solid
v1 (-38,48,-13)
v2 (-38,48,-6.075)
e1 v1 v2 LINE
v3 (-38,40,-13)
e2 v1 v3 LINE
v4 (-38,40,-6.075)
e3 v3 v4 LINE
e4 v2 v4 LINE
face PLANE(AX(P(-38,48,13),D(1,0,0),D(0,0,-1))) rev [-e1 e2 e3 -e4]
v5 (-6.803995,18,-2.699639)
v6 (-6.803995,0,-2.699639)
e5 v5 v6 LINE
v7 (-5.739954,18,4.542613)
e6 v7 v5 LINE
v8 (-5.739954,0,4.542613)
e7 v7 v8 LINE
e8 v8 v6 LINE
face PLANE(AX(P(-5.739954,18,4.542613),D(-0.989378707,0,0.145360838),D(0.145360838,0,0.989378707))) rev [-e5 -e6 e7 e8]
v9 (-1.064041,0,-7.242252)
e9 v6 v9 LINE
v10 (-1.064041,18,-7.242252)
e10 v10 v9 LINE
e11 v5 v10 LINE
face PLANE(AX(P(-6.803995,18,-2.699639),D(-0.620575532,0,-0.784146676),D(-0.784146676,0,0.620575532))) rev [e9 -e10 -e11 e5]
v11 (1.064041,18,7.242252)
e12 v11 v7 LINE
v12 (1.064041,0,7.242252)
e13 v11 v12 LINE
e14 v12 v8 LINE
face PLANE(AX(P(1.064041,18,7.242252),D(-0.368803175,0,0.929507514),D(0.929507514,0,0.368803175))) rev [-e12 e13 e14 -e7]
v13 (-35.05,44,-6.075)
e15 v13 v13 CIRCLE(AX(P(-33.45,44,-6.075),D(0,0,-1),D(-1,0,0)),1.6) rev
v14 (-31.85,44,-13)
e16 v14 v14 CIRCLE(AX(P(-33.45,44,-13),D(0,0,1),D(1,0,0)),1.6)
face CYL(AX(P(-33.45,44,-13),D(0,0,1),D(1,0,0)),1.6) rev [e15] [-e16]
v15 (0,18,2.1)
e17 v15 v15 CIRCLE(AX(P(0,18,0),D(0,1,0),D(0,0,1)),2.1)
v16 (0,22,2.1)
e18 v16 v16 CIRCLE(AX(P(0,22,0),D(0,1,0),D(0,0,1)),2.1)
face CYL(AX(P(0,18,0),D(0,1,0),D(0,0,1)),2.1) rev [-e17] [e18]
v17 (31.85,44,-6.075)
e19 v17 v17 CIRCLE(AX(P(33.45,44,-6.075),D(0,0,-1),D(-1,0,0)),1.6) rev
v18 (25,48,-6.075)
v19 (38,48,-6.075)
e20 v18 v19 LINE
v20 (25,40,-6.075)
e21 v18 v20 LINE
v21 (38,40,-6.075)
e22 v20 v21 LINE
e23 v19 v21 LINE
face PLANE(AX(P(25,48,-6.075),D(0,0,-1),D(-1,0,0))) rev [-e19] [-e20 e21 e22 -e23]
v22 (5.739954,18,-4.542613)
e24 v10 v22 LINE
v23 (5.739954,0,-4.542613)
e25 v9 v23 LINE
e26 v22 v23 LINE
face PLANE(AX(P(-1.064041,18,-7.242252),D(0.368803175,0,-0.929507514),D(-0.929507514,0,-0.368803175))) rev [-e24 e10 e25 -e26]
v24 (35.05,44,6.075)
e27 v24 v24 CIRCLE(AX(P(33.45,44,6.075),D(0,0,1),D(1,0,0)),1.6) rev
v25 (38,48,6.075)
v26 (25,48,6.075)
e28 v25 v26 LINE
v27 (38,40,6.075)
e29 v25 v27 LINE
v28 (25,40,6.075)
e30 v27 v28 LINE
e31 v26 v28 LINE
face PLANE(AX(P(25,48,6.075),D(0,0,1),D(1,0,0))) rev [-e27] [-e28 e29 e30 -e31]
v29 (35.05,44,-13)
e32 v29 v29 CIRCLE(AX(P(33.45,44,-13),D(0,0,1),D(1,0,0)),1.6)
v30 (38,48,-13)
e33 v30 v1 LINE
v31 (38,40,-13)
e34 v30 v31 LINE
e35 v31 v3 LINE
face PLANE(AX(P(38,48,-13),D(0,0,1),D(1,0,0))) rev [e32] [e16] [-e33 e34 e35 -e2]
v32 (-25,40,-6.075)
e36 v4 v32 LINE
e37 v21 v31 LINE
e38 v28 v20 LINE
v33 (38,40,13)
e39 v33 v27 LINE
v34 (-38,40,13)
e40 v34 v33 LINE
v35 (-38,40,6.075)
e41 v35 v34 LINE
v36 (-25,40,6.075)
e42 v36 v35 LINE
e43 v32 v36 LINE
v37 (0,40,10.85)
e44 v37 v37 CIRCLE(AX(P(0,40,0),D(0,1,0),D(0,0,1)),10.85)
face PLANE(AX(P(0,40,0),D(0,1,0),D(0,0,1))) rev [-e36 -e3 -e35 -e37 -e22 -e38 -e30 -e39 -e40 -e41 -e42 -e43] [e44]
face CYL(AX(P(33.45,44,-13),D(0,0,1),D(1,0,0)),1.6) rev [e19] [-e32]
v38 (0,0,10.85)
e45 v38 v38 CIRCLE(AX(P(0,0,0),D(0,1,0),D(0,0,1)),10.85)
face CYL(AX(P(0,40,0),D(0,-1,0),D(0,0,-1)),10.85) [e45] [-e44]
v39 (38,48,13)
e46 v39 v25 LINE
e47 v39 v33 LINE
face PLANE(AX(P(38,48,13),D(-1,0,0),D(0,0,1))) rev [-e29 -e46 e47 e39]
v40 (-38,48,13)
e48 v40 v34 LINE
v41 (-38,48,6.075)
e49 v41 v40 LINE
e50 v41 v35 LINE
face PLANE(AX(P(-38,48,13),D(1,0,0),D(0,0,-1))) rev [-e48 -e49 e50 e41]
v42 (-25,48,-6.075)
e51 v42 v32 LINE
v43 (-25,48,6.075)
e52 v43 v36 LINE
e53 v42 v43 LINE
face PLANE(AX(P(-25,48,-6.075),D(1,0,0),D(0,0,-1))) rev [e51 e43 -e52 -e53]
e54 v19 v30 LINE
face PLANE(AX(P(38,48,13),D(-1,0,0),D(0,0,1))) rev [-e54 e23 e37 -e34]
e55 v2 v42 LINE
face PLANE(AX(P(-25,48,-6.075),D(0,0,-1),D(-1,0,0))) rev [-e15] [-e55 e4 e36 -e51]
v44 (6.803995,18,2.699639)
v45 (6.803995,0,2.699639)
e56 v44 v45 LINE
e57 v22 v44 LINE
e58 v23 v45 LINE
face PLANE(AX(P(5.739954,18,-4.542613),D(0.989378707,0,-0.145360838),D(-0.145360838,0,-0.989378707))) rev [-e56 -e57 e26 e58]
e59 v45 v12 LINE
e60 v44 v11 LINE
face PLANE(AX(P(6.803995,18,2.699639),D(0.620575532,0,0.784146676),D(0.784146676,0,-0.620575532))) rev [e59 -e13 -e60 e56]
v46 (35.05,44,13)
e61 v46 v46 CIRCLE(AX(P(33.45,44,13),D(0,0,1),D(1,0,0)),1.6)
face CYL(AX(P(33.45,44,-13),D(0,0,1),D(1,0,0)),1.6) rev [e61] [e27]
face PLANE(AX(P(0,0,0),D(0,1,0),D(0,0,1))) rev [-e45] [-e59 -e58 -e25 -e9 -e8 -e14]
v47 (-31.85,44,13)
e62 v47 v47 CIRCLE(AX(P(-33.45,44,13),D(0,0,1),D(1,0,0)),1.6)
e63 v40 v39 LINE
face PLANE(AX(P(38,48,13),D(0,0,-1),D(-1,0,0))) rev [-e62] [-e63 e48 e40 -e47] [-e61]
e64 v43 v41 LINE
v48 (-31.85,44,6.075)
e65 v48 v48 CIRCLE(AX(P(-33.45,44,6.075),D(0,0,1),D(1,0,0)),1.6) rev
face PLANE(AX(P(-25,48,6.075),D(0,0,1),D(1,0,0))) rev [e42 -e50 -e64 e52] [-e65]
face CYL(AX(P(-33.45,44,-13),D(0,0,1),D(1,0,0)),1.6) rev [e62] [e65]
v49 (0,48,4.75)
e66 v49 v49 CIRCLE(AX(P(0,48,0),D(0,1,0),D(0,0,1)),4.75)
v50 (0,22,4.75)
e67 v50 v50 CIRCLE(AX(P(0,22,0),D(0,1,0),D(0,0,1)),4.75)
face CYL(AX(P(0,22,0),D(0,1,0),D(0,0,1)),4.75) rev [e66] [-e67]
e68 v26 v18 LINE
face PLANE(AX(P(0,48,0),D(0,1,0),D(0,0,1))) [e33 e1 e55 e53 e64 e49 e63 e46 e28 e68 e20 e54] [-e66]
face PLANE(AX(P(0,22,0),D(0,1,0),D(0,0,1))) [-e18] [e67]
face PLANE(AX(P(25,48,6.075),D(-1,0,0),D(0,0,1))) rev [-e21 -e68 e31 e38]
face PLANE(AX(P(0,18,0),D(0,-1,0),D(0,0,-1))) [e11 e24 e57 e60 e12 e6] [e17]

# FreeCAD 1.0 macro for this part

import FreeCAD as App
import Part
import Sketcher

V = App.Vector
Q = App.Units.Quantity

doc = App.newDocument("Part")
body = doc.addObject("PartDesign::Body", "Body")

sketch1 = body.newObject("Sketcher::SketchObject", "Sketch")
sketch1.AttachmentSupport = (doc.getObject("XZ_Plane"), [""])
sketch1.MapMode = "FlatFace"
sketch1.addGeometry(Part.Circle(V(0, 0, 0), V(0, 0, 1), 11), False)
sketch1.addConstraint([
    Sketcher.Constraint("Coincident", 0, 3, -1, 1),
    Sketcher.Constraint("Diameter", 0, Q("21.7 mm")),
])
pad1 = body.newObject("PartDesign::Pad", "Pad")
pad1.Profile = sketch1
pad1.Length = 40
pad1.Reversed = True

sketch2 = body.newObject("Sketcher::SketchObject", "Sketch001")
sketch2.AttachmentSupport = (doc.getObject("XZ_Plane"), [""])
sketch2.MapMode = "FlatFace"
sketch2.addGeometry([
    Part.LineSegment(V(-6, 5, 0), V(-7, -3, 0)),
    Part.LineSegment(V(-7, -3, 0), V(-1, -7, 0)),
    Part.LineSegment(V(-1, -7, 0), V(6, -5, 0)),
    Part.LineSegment(V(6, -5, 0), V(7, 3, 0)),
    Part.LineSegment(V(7, 3, 0), V(1, 7, 0)),
    Part.LineSegment(V(1, 7, 0), V(-6, 5, 0)),
], False)
sketch2.addConstraint([
    Sketcher.Constraint("Coincident", 0, 2, 1, 1),
    Sketcher.Constraint("Coincident", 1, 2, 2, 1),
    Sketcher.Constraint("Coincident", 2, 2, 3, 1),
    Sketcher.Constraint("Coincident", 3, 2, 4, 1),
    Sketcher.Constraint("Coincident", 4, 2, 5, 1),
    Sketcher.Constraint("Coincident", 5, 2, 0, 1),
    Sketcher.Constraint("Symmetric", 0, 2, 3, 2, -1, 1),
    Sketcher.Constraint("Symmetric", 1, 2, 4, 2, -1, 1),
    Sketcher.Constraint("Symmetric", 2, 2, 5, 2, -1, 1),
    Sketcher.Constraint("Equal", 0, 1),
    Sketcher.Constraint("Equal", 1, 2),
    Sketcher.Constraint("Distance", 0, Q("7.32 mm")),
    Sketcher.Constraint("DistanceY", 0, 2, -1, 1, Q("2.699639 mm")),
    Sketcher.Constraint("DistanceX", 1, 2, -1, 1, Q("1.064041 mm")),
    Sketcher.Constraint("DistanceY", 1, 2, 2, 2, Q("2.699639 mm")),
])
pocket1 = body.newObject("PartDesign::Pocket", "Pocket")
pocket1.Profile = sketch2
pocket1.Length = 18

sketch3 = body.newObject("Sketcher::SketchObject", "Sketch002")
sketch3.AttachmentSupport = (doc.getObject("XZ_Plane"), [""])
sketch3.MapMode = "FlatFace"
sketch3.AttachmentOffset = App.Placement(V(0, 0, -40), App.Rotation())
sketch3.addGeometry(Part.Circle(V(0, 0, 0), V(0, 0, 1), 4.8), False)
sketch3.addConstraint([
    Sketcher.Constraint("Coincident", 0, 3, -1, 1),
    Sketcher.Constraint("Diameter", 0, Q("9.5 mm")),
])
pocket2 = body.newObject("PartDesign::Pocket", "Pocket001")
pocket2.Profile = sketch3
pocket2.Length = 18
pocket2.Reversed = True

sketch4 = body.newObject("Sketcher::SketchObject", "Sketch003")
sketch4.AttachmentSupport = (doc.getObject("XZ_Plane"), [""])
sketch4.MapMode = "FlatFace"
sketch4.AttachmentOffset = App.Placement(V(0, 0, -22), App.Rotation())
sketch4.addGeometry(Part.Circle(V(0, 0, 0), V(0, 0, 1), 2.1), False)
sketch4.addConstraint([
    Sketcher.Constraint("Coincident", 0, 3, -1, 1),
    Sketcher.Constraint("Diameter", 0, Q("4.2 mm")),
])
pocket3 = body.newObject("PartDesign::Pocket", "Pocket002")
pocket3.Profile = sketch4
pocket3.Length = 4
pocket3.Reversed = True

sketch5 = body.newObject("Sketcher::SketchObject", "Sketch004")
sketch5.AttachmentSupport = (doc.getObject("XZ_Plane"), [""])
sketch5.MapMode = "FlatFace"
sketch5.AttachmentOffset = App.Placement(V(0, 0, -40), App.Rotation())
sketch5.addGeometry([
    Part.LineSegment(V(-38, -13, 0), V(-38, 13, 0)),
    Part.LineSegment(V(-38, 13, 0), V(38, 13, 0)),
    Part.LineSegment(V(38, 13, 0), V(38, -13, 0)),
    Part.LineSegment(V(38, -13, 0), V(-38, -13, 0)),
], False)
sketch5.addConstraint([
    Sketcher.Constraint("Coincident", 0, 2, 1, 1),
    Sketcher.Constraint("Coincident", 1, 2, 2, 1),
    Sketcher.Constraint("Coincident", 2, 2, 3, 1),
    Sketcher.Constraint("Coincident", 3, 2, 0, 1),
    Sketcher.Constraint("Vertical", 0),
    Sketcher.Constraint("Horizontal", 1),
    Sketcher.Constraint("Vertical", 2),
    Sketcher.Constraint("Horizontal", 3),
    Sketcher.Constraint("Symmetric", 0, 2, 2, 2, -1, 1),
    Sketcher.Constraint("DistanceX", 1, 1, 1, 2, Q("76 mm")),
    Sketcher.Constraint("DistanceY", 0, 1, 0, 2, Q("26 mm")),
])
pad2 = body.newObject("PartDesign::Pad", "Pad001")
pad2.Profile = sketch5
pad2.Length = 8
pad2.Reversed = True

sketch6 = body.newObject("Sketcher::SketchObject", "Sketch005")
sketch6.AttachmentSupport = (doc.getObject("XZ_Plane"), [""])
sketch6.MapMode = "FlatFace"
sketch6.AttachmentOffset = App.Placement(V(0, 0, -48), App.Rotation())
sketch6.addGeometry(Part.Circle(V(0, 0, 0), V(0, 0, 1), 4.8), False)
sketch6.addConstraint([
    Sketcher.Constraint("Coincident", 0, 3, -1, 1),
    Sketcher.Constraint("Diameter", 0, Q("9.5 mm")),
])
pocket4 = body.newObject("PartDesign::Pocket", "Pocket003")
pocket4.Profile = sketch6
pocket4.Length = 8
pocket4.Reversed = True

sketch7 = body.newObject("Sketcher::SketchObject", "Sketch006")
sketch7.AttachmentSupport = (doc.getObject("XY_Plane"), [""])
sketch7.MapMode = "FlatFace"
sketch7.AttachmentOffset = App.Placement(V(0, 0, 13), App.Rotation())
sketch7.addGeometry([
    Part.Circle(V(-33.5, 44, 0), V(0, 0, 1), 1.6),
    Part.Circle(V(33.5, 44, 0), V(0, 0, 1), 1.6),
], False)
sketch7.addConstraint([
    Sketcher.Constraint("Equal", 0, 1),
    Sketcher.Constraint("Symmetric", 0, 3, 1, 3, -2),
    Sketcher.Constraint("Diameter", 0, Q("3.2 mm")),
    Sketcher.Constraint("DistanceY", -1, 1, 0, 3, Q("44 mm")),
    Sketcher.Constraint("DistanceX", 0, 3, 1, 3, Q("66.9 mm")),
])
pocket5 = body.newObject("PartDesign::Pocket", "Pocket004")
pocket5.Profile = sketch7
pocket5.Length = 26

sketch8 = body.newObject("Sketcher::SketchObject", "Sketch007")
sketch8.AttachmentSupport = (doc.getObject("XZ_Plane"), [""])
sketch8.MapMode = "FlatFace"
sketch8.AttachmentOffset = App.Placement(V(0, 0, -40), App.Rotation())
sketch8.addGeometry([
    Part.LineSegment(V(25, 6, 0), V(25, -6, 0)),
    Part.LineSegment(V(25, -6, 0), V(38, -6, 0)),
    Part.LineSegment(V(38, -6, 0), V(38, 6, 0)),
    Part.LineSegment(V(38, 6, 0), V(25, 6, 0)),
    Part.LineSegment(V(-38, 6, 0), V(-38, -6, 0)),
    Part.LineSegment(V(-38, -6, 0), V(-25, -6, 0)),
    Part.LineSegment(V(-25, -6, 0), V(-25, 6, 0)),
    Part.LineSegment(V(-25, 6, 0), V(-38, 6, 0)),
], False)
sketch8.addConstraint([
    Sketcher.Constraint("Coincident", 0, 2, 1, 1),
    Sketcher.Constraint("Coincident", 1, 2, 2, 1),
    Sketcher.Constraint("Coincident", 2, 2, 3, 1),
    Sketcher.Constraint("Coincident", 3, 2, 0, 1),
    Sketcher.Constraint("Coincident", 4, 2, 5, 1),
    Sketcher.Constraint("Coincident", 5, 2, 6, 1),
    Sketcher.Constraint("Coincident", 6, 2, 7, 1),
    Sketcher.Constraint("Coincident", 7, 2, 4, 1),
    Sketcher.Constraint("Vertical", 0),
    Sketcher.Constraint("Horizontal", 1),
    Sketcher.Constraint("Vertical", 2),
    Sketcher.Constraint("Horizontal", 3),
    Sketcher.Constraint("Vertical", 4),
    Sketcher.Constraint("Horizontal", 5),
    Sketcher.Constraint("Vertical", 6),
    Sketcher.Constraint("Horizontal", 7),
    Sketcher.Constraint("Symmetric", 2, 2, 4, 2, -1, 1),
    Sketcher.Constraint("Symmetric", 0, 2, 6, 2, -1, 1),
    Sketcher.Constraint("Horizontal", 1, 2, 4, 2),
    Sketcher.Constraint("DistanceX", 1, 1, 1, 2, Q("13 mm")),
    Sketcher.Constraint("DistanceX", -1, 1, 0, 2, Q("25 mm")),
    Sketcher.Constraint("DistanceY", 0, 2, 0, 1, Q("12.15 mm")),
])
pocket6 = body.newObject("PartDesign::Pocket", "Pocket005")
pocket6.Profile = sketch8
pocket6.Length = 8

doc.recompute()
